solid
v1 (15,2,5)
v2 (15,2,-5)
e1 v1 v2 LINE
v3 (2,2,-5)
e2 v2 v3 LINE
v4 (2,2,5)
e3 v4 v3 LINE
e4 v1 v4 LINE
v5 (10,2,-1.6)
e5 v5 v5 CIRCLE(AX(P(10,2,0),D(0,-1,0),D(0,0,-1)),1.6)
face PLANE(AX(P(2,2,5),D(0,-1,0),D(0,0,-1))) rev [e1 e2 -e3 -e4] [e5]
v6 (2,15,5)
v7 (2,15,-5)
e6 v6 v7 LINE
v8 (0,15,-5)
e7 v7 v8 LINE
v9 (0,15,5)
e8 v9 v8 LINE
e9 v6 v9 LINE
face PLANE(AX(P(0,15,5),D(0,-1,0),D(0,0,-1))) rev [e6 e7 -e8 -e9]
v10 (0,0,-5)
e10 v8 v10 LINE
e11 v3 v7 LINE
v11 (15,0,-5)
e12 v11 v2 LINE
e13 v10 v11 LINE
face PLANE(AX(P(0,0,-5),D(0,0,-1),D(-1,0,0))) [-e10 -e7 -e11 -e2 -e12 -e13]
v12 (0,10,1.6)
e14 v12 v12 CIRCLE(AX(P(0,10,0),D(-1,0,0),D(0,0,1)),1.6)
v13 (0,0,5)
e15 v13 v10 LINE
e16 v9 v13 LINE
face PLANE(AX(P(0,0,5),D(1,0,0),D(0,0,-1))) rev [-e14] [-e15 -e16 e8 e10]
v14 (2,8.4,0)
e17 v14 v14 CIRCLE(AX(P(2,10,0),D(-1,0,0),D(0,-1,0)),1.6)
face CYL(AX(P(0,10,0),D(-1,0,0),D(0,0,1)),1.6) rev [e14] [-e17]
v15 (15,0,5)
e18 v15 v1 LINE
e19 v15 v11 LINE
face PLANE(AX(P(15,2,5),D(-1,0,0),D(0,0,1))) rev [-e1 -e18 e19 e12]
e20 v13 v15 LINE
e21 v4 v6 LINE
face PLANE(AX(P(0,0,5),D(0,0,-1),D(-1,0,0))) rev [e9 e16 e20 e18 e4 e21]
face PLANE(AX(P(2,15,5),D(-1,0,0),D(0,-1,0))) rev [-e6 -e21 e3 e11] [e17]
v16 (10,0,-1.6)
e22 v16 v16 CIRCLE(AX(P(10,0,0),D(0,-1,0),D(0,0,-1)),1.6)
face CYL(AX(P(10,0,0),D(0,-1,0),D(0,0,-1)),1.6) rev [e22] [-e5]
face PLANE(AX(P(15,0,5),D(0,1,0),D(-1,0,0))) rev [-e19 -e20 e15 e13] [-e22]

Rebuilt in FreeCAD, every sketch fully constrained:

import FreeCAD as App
import Part
import Sketcher
Q = App.Units.Quantity

doc = App.newDocument("Part")
body = doc.addObject("PartDesign::Body", "Body")

# Sketch on XY plane
sketch1 = body.newObject("Sketcher::SketchObject", "Sketch")
sketch1.AttachmentSupport = (doc.getObject("XY_Plane"), [""])
sketch1.MapMode = "FlatFace"
sketch1.addGeometry([
    Part.LineSegment(App.Vector(0, 15, 0), App.Vector(0, 0, 0)),  # 0
    Part.LineSegment(App.Vector(0, 0, 0), App.Vector(15, 0, 0)),  # 1
    Part.LineSegment(App.Vector(15, 0, 0), App.Vector(15, 2, 0)),  # 2
    Part.LineSegment(App.Vector(15, 2, 0), App.Vector(2, 2, 0)),  # 3
    Part.LineSegment(App.Vector(2, 2, 0), App.Vector(2, 15, 0)),  # 4
    Part.LineSegment(App.Vector(2, 15, 0), App.Vector(0, 15, 0)),  # 5
], False)
sketch1.addConstraint([
    Sketcher.Constraint("Coincident", 0, 2, 1, 1),
    Sketcher.Constraint("Coincident", 1, 2, 2, 1),
    Sketcher.Constraint("Coincident", 2, 2, 3, 1),
    Sketcher.Constraint("Coincident", 3, 2, 4, 1),
    Sketcher.Constraint("Coincident", 4, 2, 5, 1),
    Sketcher.Constraint("Coincident", 5, 2, 0, 1),
    Sketcher.Constraint("Vertical", 0),
    Sketcher.Constraint("Horizontal", 1),
    Sketcher.Constraint("Vertical", 2),
    Sketcher.Constraint("Horizontal", 3),
    Sketcher.Constraint("Vertical", 4),
    Sketcher.Constraint("Horizontal", 5),
    Sketcher.Constraint("Coincident", 0, 2, -1, 1),
    Sketcher.Constraint("Equal", 1, 0),
    Sketcher.Constraint("Equal", 5, 2),
    Sketcher.Constraint("DistanceX", 1, 1, 1, 2, Q("15 mm")),
    Sketcher.Constraint("DistanceX", 3, 2, 3, 1, Q("13 mm")),
])
pad1 = body.newObject("PartDesign::Pad", "Pad")
pad1.Profile = sketch1
pad1.Length = 10
pad1.Midplane = True

# Sketch on YZ plane
sketch2 = body.newObject("Sketcher::SketchObject", "Sketch001")
sketch2.AttachmentSupport = (doc.getObject("YZ_Plane"), [""])
sketch2.MapMode = "FlatFace"
sketch2.addGeometry(Part.Circle(App.Vector(10, 0, 0), App.Vector(0, 0, 1), 1.6), False)
sketch2.addConstraint([
    Sketcher.Constraint("PointOnObject", 0, 3, -1),
    Sketcher.Constraint("Diameter", 0, Q("3.2 mm")),
    Sketcher.Constraint("DistanceX", -1, 1, 0, 3, Q("10 mm")),
])
doc.recompute()
hole = body.newObject("PartDesign::Hole", "Hole")
hole.Profile = sketch2
hole.ThreadType = "None"
hole.Diameter = 3.2
hole.DepthType = "ThroughAll"
hole.Reversed = True

# Sketch on XZ plane
sketch3 = body.newObject("Sketcher::SketchObject", "Sketch002")
sketch3.AttachmentSupport = (doc.getObject("XZ_Plane"), [""])
sketch3.MapMode = "FlatFace"
sketch3.addGeometry(Part.Circle(App.Vector(10, 0, 0), App.Vector(0, 0, 1), 1.6), False)
sketch3.addConstraint([
    Sketcher.Constraint("PointOnObject", 0, 3, -1),
    Sketcher.Constraint("Diameter", 0, Q("3.2 mm")),
    Sketcher.Constraint("DistanceX", -1, 1, 0, 3, Q("10 mm")),
])
doc.recompute()
hole2 = body.newObject("PartDesign::Hole", "Hole001")
hole2.Profile = sketch3
hole2.ThreadType = "None"
hole2.Diameter = 3.2
hole2.DepthType = "ThroughAll"

doc.recompute()
